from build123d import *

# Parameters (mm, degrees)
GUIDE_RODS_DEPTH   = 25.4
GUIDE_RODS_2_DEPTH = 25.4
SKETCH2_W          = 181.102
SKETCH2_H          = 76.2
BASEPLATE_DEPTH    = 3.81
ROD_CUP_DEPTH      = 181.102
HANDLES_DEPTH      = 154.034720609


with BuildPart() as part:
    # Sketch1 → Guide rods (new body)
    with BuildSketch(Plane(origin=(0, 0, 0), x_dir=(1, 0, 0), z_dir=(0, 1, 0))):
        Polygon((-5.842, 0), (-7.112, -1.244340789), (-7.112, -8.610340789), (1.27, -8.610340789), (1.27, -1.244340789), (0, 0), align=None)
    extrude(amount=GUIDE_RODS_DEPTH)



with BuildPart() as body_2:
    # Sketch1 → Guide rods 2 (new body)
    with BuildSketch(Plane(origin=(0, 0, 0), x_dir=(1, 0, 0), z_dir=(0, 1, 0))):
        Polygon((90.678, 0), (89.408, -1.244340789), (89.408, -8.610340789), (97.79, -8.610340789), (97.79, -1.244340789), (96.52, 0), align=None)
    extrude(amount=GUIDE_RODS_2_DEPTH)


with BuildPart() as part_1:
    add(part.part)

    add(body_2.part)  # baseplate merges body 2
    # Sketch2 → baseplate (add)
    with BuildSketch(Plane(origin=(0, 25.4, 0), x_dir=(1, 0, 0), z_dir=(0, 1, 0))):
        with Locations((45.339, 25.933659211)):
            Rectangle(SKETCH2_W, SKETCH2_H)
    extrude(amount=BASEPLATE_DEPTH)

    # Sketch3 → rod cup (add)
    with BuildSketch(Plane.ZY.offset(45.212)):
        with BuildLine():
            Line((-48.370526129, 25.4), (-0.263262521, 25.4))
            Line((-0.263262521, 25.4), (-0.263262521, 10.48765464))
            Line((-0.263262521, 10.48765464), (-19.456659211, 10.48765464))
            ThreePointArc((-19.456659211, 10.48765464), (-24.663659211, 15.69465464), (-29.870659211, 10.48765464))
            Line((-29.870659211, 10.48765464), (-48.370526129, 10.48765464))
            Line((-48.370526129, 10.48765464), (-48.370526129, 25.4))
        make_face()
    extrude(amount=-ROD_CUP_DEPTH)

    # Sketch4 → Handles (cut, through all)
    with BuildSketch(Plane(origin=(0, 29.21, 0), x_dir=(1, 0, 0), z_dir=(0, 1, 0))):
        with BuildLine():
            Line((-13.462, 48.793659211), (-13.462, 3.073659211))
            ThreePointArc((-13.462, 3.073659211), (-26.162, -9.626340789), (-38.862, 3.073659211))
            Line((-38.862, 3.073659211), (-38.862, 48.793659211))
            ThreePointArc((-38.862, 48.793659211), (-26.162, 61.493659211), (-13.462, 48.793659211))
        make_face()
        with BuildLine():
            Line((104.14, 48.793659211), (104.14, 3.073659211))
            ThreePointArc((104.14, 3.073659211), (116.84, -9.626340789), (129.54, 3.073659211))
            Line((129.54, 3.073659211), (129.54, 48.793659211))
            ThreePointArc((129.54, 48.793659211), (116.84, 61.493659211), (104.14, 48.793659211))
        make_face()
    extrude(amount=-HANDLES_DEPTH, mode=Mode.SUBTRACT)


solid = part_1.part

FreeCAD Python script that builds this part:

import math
import FreeCAD as App
import Part
import Sketcher
from FreeCAD import Vector
Q = App.Units.Quantity


def add_polygon(sketch, points):
    """Adds a closed chain of lines whose ends are joined by coincident constraints."""
    first, n = sketch.GeometryCount, len(points)
    for a, b in zip(points, points[1:] + points[:1]):
        sketch.addGeometry(Part.LineSegment(App.Vector(*a, 0), App.Vector(*b, 0)), False)
    for i in range(n):
        sketch.addConstraint(Sketcher.Constraint("Coincident", first + i, 2, first + (i + 1) % n, 1))

doc = App.newDocument("Part")
body = doc.addObject("PartDesign::Body", "Body")

# Sketch on XZ plane
sketch1 = body.newObject("Sketcher::SketchObject", "Sketch")
sketch1.AttachmentSupport = (doc.getObject("XZ_Plane"), [""])
sketch1.MapMode = "FlatFace"
add_polygon(sketch1, [(-5.8, 0), (-7.1, 1.2), (-7.1, 8.6), (1.3, 8.6), (1.3, 1.2), (0, 0)])  # lines 0-5
sketch1.addConstraint([
    Sketcher.Constraint("Vertical", 1),
    Sketcher.Constraint("Horizontal", 2),
    Sketcher.Constraint("Vertical", 3),
    Sketcher.Constraint("Horizontal", 5),
    Sketcher.Constraint("Coincident", 4, 2, -1, 1),
    Sketcher.Constraint("Horizontal", 0, 2, 3, 2),
    Sketcher.Constraint("Equal", 0, 4),
    Sketcher.Constraint("DistanceX", 2, 1, 2, 2, Q("0.33 in")),
    Sketcher.Constraint("DistanceX", 5, 2, 5, 1, Q("0.23 in")),
    Sketcher.Constraint("DistanceY", 1, 1, 1, 2, Q("0.29 in")),
    Sketcher.Constraint("Distance", 0, Q("0.07 in")),
])
pad1 = body.newObject("PartDesign::Pad", "Pad")
pad1.Profile = sketch1
pad1.Length = Q("1 in")
pad1.Reversed = True
body2 = doc.addObject("PartDesign::Body", "Body001")

# Sketch on XZ plane
sketch2 = body2.newObject("Sketcher::SketchObject", "Sketch001")
sketch2.AttachmentSupport = (doc.getObject("XZ_Plane001"), [""])
sketch2.MapMode = "FlatFace"
add_polygon(sketch2, [(90.7, 0), (89.4, 1.2), (89.4, 8.6), (97.8, 8.6), (97.8, 1.2), (96.5, 0)])  # lines 0-5
sketch2.addConstraint([
    Sketcher.Constraint("Vertical", 1),
    Sketcher.Constraint("Horizontal", 2),
    Sketcher.Constraint("Vertical", 3),
    Sketcher.Constraint("Horizontal", 5),
    Sketcher.Constraint("PointOnObject", 4, 2, -1),
    Sketcher.Constraint("Horizontal", 0, 2, 3, 2),
    Sketcher.Constraint("Equal", 0, 4),
    Sketcher.Constraint("DistanceX", 2, 1, 2, 2, Q("0.33 in")),
    Sketcher.Constraint("DistanceX", 5, 2, 5, 1, Q("0.23 in")),
    Sketcher.Constraint("DistanceY", 1, 1, 1, 2, Q("0.29 in")),
    Sketcher.Constraint("DistanceX", -1, 1, 4, 2, Q("3.8 in")),
    Sketcher.Constraint("Distance", 0, Q("0.07 in")),
])
pad2 = body2.newObject("PartDesign::Pad", "Pad001")
pad2.Profile = sketch2
pad2.Length = Q("1 in")
pad2.Reversed = True
body.AllowCompound = True
doc.recompute()

boolean = body.newObject("PartDesign::Boolean", "Boolean")
boolean.Type = "Fuse"
boolean.addObjects([body2])

# Sketch on XZ plane
sketch3 = body.newObject("Sketcher::SketchObject", "Sketch002")
sketch3.AttachmentSupport = (doc.getObject("XZ_Plane"), [""])
sketch3.MapMode = "FlatFace"
sketch3.AttachmentOffset = App.Placement(Vector(0, 0, -1 * 25.4), App.Rotation())
add_polygon(sketch3, [(-45, -64), (-45, 12), (136, 12), (136, -64)])  # lines 0-3
sketch3.addConstraint([
    Sketcher.Constraint("Vertical", 0),
    Sketcher.Constraint("Horizontal", 1),
    Sketcher.Constraint("Vertical", 2),
    Sketcher.Constraint("Horizontal", 3),
    Sketcher.Constraint("DistanceY", 0, 1, 0, 2, Q("3 in")),
    Sketcher.Constraint("DistanceX", 1, 1, 1, 2, Q("7.13 in")),
    Sketcher.Constraint("DistanceX", 0, 2, -1, 1, Q("1.78 in")),
    Sketcher.Constraint("DistanceY", -1, 1, 0, 2, 12.166341),
])
pad3 = body.newObject("PartDesign::Pad", "Pad002")
pad3.Profile = sketch3
pad3.Length = Q("0.15 in")
pad3.Reversed = True

# Sketch on YZ plane
sketch4 = body.newObject("Sketcher::SketchObject", "Sketch003")
sketch4.AttachmentSupport = (doc.getObject("YZ_Plane"), [""])
sketch4.MapMode = "FlatFace"
sketch4.AttachmentOffset = App.Placement(Vector(0, 0, -1.78 * 25.4), App.Rotation())
sketch4.addGeometry([
    Part.LineSegment(Vector(25, 0, 0), Vector(25, -48, 0)),  # 0
    Part.LineSegment(Vector(25, -48, 0), Vector(10, -48, 0)),  # 1
    Part.LineSegment(Vector(10, -48, 0), Vector(10, -30, 0)),  # 2
    Part.ArcOfCircle(Part.Circle(Vector(10, -25, 0), Vector(0, 0, 1), 5), math.radians(-90), math.radians(90)),  # 3
    Part.LineSegment(Vector(10, -19, 0), Vector(10, 0, 0)),  # 4
    Part.LineSegment(Vector(10, 0, 0), Vector(25, 0, 0)),  # 5
], False)
sketch4.addConstraint([
    Sketcher.Constraint("Coincident", 0, 2, 1, 1),
    Sketcher.Constraint("Coincident", 1, 2, 2, 1),
    Sketcher.Constraint("Coincident", 2, 2, 3, 1),
    Sketcher.Constraint("Coincident", 3, 2, 4, 1),
    Sketcher.Constraint("Coincident", 4, 2, 5, 1),
    Sketcher.Constraint("Coincident", 5, 2, 0, 1),
    Sketcher.Constraint("Vertical", 0),
    Sketcher.Constraint("Horizontal", 1),
    Sketcher.Constraint("Vertical", 2),
    Sketcher.Constraint("Vertical", 4),
    Sketcher.Constraint("Horizontal", 5),
    Sketcher.Constraint("Vertical", 3, 3, 1, 2),
    Sketcher.Constraint("Vertical", 2, 2, 3, 2),
    Sketcher.Constraint("DistanceX", -1, 1, 0, 2, Q("1 in")),
    Sketcher.Constraint("Radius", 3, Q("0.205 in")),
    Sketcher.Constraint("DistanceX", 1, 2, 1, 1, 14.912345),
    Sketcher.Constraint("DistanceY", 0, 2, 0, 1, 48.107264),
    Sketcher.Constraint("DistanceY", 2, 1, 2, 2, 18.499867),
    Sketcher.Constraint("DistanceY", 3, 3, -1, 1, 24.663659),
])
pad4 = body.newObject("PartDesign::Pad", "Pad003")
pad4.Profile = sketch4
pad4.Length = Q("7.13 in")

# Sketch on XZ plane
sketch5 = body.newObject("Sketcher::SketchObject", "Sketch004")
sketch5.AttachmentSupport = (doc.getObject("XZ_Plane"), [""])
sketch5.MapMode = "FlatFace"
sketch5.AttachmentOffset = App.Placement(Vector(0, 0, -1.15 * 25.4), App.Rotation())
sketch5.addGeometry([
    Part.LineSegment(Vector(-13, -3, 0), Vector(-13, -49, 0)),  # 0
    Part.ArcOfCircle(Part.Circle(Vector(-26, -49, 0), Vector(0, 0, 1), 13), math.radians(180), math.radians(360)),  # 1
    Part.LineSegment(Vector(-39, -49, 0), Vector(-39, -3, 0)),  # 2
    Part.ArcOfCircle(Part.Circle(Vector(-26, -3, 0), Vector(0, 0, 1), 13), math.radians(0), math.radians(180)),  # 3
    Part.LineSegment(Vector(104, -49, 0), Vector(104, -3, 0)),  # 4
    Part.ArcOfCircle(Part.Circle(Vector(117, -3, 0), Vector(0, 0, 1), 13), math.radians(0), math.radians(180)),  # 5
    Part.LineSegment(Vector(130, -3, 0), Vector(130, -49, 0)),  # 6
    Part.ArcOfCircle(Part.Circle(Vector(117, -49, 0), Vector(0, 0, 1), 13), math.radians(180), math.radians(360)),  # 7
], False)
sketch5.addConstraint([
    Sketcher.Constraint("Tangent", 0, 2, 1, 2),
    Sketcher.Constraint("Tangent", 1, 1, 2, 1),
    Sketcher.Constraint("Tangent", 2, 2, 3, 2),
    Sketcher.Constraint("Tangent", 3, 1, 0, 1),
    Sketcher.Constraint("Tangent", 4, 2, 5, 2),
    Sketcher.Constraint("Tangent", 5, 1, 6, 1),
    Sketcher.Constraint("Tangent", 6, 2, 7, 2),
    Sketcher.Constraint("Tangent", 7, 1, 4, 1),
    Sketcher.Constraint("Vertical", 0),
    Sketcher.Constraint("Vertical", 2),
    Sketcher.Constraint("Vertical", 4),
    Sketcher.Constraint("Vertical", 6),
    Sketcher.Constraint("Equal", 3, 5),
    Sketcher.Constraint("Horizontal", 3, 3, 5, 3),
    Sketcher.Constraint("Horizontal", 1, 3, 7, 3),
    Sketcher.Constraint("Radius", 1, Q("0.5 in")),
    Sketcher.Constraint("DistanceY", 0, 2, 0, 1, Q("1.8 in")),
    Sketcher.Constraint("DistanceX", -1, 1, 5, 3, Q("4.6 in")),
    Sketcher.Constraint("DistanceX", 1, 3, -1, 1, Q("1.03 in")),
    Sketcher.Constraint("DistanceY", 1, 3, -1, 1, 48.793659),
])
pocket1 = body.newObject("PartDesign::Pocket", "Pocket")
pocket1.Profile = sketch5
pocket1.Type = "ThroughAll"
pocket1.Reversed = True

doc.recompute()
